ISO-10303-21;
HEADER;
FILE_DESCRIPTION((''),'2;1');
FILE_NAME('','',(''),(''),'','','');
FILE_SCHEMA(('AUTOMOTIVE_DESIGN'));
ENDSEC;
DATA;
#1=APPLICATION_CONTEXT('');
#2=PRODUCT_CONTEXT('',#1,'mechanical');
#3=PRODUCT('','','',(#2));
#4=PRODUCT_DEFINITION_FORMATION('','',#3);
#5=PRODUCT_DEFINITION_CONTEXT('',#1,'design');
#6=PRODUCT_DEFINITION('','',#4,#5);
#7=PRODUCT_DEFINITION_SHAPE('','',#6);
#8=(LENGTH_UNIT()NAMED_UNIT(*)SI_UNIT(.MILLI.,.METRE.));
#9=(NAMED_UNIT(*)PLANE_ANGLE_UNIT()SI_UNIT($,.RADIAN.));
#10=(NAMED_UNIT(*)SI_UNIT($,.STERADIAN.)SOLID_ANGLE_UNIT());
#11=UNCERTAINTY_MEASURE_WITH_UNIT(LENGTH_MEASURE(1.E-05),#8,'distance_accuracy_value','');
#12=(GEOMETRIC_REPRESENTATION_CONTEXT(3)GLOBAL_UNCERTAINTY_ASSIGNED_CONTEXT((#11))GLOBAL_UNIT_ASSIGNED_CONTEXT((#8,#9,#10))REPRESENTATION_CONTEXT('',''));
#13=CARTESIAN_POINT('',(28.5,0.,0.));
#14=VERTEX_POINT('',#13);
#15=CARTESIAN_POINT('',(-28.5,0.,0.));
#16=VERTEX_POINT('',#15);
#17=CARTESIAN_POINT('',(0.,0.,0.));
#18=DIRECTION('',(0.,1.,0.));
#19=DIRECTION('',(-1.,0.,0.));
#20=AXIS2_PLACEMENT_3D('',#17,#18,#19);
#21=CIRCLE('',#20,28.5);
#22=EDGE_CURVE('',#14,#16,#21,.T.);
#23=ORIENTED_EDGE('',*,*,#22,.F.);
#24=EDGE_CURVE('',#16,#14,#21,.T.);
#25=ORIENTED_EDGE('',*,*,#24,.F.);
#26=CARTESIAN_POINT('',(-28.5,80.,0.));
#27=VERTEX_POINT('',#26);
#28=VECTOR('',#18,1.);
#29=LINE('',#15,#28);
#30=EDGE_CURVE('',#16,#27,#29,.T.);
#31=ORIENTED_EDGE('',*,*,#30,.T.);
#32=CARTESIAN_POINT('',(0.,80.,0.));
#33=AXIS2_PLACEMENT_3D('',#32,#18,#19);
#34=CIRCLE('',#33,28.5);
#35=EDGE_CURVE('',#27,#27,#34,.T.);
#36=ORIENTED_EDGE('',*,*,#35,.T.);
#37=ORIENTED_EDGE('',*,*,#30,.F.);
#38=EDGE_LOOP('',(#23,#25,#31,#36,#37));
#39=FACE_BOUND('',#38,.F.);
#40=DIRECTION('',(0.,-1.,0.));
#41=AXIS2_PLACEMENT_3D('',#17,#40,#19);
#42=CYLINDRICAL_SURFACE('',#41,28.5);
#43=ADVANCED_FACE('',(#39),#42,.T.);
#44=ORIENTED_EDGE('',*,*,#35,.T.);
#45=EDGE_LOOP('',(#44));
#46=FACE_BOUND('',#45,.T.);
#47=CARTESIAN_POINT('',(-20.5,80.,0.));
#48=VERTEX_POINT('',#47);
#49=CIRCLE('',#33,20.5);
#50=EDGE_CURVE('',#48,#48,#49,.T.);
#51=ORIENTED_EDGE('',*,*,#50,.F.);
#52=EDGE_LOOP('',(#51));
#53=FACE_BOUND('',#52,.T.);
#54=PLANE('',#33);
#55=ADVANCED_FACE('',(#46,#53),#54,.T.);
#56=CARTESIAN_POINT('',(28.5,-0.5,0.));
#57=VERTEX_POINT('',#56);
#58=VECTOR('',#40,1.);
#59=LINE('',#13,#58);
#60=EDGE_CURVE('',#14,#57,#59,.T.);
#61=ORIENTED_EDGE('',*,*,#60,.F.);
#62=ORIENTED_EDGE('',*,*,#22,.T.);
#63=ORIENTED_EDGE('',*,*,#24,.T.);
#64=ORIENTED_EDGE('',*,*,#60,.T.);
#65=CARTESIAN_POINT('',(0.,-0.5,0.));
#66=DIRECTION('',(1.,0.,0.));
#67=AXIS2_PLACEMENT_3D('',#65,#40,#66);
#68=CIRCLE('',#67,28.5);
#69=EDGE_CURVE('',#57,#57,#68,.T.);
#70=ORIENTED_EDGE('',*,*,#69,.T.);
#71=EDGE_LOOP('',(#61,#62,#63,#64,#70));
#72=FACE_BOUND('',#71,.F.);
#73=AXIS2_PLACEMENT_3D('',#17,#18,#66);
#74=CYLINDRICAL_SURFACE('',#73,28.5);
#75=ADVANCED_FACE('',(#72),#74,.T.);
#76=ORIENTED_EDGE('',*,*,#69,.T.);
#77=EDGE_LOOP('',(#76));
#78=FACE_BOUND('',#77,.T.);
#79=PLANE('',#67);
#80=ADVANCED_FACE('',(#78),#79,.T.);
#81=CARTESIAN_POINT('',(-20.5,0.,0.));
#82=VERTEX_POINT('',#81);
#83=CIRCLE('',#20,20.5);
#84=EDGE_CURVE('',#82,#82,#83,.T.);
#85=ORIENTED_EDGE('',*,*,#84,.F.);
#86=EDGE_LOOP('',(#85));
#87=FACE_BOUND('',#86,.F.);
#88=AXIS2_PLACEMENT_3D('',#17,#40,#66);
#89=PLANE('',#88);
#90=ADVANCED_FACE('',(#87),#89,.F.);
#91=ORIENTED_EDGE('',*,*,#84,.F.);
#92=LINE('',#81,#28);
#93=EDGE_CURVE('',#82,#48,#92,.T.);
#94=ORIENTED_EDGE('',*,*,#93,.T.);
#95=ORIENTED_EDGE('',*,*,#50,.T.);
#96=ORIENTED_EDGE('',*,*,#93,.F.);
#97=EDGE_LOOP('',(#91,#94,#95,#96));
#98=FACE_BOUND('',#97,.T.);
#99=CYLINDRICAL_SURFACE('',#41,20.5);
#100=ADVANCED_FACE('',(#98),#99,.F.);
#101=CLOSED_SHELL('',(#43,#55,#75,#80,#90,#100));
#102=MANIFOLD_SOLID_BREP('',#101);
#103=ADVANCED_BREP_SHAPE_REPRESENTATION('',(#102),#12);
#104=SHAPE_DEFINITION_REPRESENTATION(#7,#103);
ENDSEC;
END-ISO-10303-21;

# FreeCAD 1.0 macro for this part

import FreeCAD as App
import Part
import Sketcher

doc = App.newDocument("Part")
body = doc.addObject("PartDesign::Body", "Body")

sketch1 = body.newObject("Sketcher::SketchObject", "Sketch")
sketch1.AttachmentSupport = (doc.getObject("XZ_Plane"), [""])
sketch1.MapMode = "FlatFace"
sketch1.addGeometry([
    Part.Circle(App.Vector(0, 0, 0), App.Vector(0, 0, 1), 28),
    Part.Circle(App.Vector(0, 0, 0), App.Vector(0, 0, 1), 20),
], False)
sketch1.addConstraint([
    Sketcher.Constraint("Coincident", 0, 3, -1, 1),
    Sketcher.Constraint("Coincident", 1, 3, -1, 1),
    Sketcher.Constraint("Diameter", 0, 57.0),
    Sketcher.Constraint("Diameter", 1, 41.0),
])
pad1 = body.newObject("PartDesign::Pad", "Pad")
pad1.Profile = sketch1
pad1.Length = 80
pad1.Reversed = True

sketch2 = body.newObject("Sketcher::SketchObject", "Sketch001")
sketch2.AttachmentSupport = (doc.getObject("XZ_Plane"), [""])
sketch2.MapMode = "FlatFace"
sketch2.addGeometry(Part.Circle(App.Vector(0, 0, 0), App.Vector(0, 0, 1), 28), False)
sketch2.addConstraint([
    Sketcher.Constraint("Coincident", 0, 3, -1, 1),
    Sketcher.Constraint("Diameter", 0, 57.0),
])
pad2 = body.newObject("PartDesign::Pad", "Pad001")
pad2.Profile = sketch2
pad2.Length = 0.5

doc.recompute()
